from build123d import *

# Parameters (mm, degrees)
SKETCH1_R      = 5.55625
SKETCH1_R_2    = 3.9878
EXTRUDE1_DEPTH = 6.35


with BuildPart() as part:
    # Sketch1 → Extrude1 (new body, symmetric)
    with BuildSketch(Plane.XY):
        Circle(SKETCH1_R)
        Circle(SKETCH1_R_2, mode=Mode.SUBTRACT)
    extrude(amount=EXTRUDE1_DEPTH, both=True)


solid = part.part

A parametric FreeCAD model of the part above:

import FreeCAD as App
import Part
import Sketcher
Q = App.Units.Quantity

doc = App.newDocument("Part")
body = doc.addObject("PartDesign::Body", "Body")

# Sketch on XY plane
sketch1 = body.newObject("Sketcher::SketchObject", "Sketch")
sketch1.AttachmentSupport = (doc.getObject("XY_Plane"), [""])
sketch1.MapMode = "FlatFace"
sketch1.addGeometry(Part.Circle(App.Vector(0, 0, 0), App.Vector(0, 0, 1), 5.55625), False)
sketch1.addGeometry(Part.Circle(App.Vector(0, 0, 0), App.Vector(0, 0, 1), 3.9878), False)
sketch1.addConstraint(Sketcher.Constraint("Coincident", 0, 3, -1, 1))
sketch1.addConstraint(Sketcher.Constraint("Coincident", 1, 3, -1, 1))
sketch1.addConstraint(Sketcher.Constraint("Diameter", 0, Q("0.4375 in")))
sketch1.addConstraint(Sketcher.Constraint("Diameter", 1, Q("0.314 in")))
pad1 = body.newObject("PartDesign::Pad", "Pad")
pad1.Profile = sketch1
pad1.Length = Q("0.5 in")
pad1.Midplane = True

doc.recompute()
